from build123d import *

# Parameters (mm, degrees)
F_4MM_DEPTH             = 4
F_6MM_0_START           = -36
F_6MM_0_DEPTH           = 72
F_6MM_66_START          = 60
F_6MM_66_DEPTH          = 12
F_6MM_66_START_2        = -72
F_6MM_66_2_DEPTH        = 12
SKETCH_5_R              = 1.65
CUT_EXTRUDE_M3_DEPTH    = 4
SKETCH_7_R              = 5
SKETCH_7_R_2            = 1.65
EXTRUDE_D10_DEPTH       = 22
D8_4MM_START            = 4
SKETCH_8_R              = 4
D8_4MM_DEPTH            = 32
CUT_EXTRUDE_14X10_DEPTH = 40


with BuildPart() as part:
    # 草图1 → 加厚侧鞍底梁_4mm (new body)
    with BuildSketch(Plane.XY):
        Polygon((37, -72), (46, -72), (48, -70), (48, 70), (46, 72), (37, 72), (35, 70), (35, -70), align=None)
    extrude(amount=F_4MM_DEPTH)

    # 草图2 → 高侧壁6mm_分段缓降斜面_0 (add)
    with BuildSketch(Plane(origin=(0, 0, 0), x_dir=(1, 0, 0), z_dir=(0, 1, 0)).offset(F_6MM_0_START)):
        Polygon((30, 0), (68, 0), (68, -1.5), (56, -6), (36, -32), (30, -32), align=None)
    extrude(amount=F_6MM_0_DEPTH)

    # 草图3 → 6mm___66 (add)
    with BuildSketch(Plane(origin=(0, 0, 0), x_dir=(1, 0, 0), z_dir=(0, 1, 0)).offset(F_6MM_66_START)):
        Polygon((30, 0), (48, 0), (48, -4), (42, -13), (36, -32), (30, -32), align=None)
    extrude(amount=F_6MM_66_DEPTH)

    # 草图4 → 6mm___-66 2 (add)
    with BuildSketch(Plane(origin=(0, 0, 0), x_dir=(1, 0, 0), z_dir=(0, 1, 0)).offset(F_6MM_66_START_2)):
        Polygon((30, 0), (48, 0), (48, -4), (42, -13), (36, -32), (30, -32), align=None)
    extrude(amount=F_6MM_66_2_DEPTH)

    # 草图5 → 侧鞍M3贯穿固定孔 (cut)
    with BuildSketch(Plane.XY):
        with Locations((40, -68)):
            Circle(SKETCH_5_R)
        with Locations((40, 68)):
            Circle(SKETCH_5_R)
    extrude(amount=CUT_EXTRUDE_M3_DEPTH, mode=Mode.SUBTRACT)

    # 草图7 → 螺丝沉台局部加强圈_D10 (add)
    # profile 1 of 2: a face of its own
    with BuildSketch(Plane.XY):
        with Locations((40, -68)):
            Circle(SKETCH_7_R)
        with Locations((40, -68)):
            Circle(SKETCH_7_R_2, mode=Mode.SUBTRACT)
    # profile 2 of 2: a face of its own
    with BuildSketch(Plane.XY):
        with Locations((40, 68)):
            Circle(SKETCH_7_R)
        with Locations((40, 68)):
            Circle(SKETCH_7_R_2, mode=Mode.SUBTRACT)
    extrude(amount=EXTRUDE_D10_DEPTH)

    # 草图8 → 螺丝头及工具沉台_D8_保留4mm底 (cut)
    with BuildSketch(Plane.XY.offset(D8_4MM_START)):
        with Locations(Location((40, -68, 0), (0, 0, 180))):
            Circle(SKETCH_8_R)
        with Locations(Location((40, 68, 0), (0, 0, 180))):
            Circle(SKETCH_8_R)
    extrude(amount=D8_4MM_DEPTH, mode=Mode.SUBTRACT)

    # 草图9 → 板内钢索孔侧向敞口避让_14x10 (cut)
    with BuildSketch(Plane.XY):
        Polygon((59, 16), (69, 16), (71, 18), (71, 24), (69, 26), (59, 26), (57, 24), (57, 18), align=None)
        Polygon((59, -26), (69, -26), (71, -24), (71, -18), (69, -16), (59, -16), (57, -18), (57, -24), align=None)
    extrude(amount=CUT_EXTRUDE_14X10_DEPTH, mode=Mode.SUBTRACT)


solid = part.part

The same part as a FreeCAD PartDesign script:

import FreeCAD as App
import Part
import Sketcher

doc = App.newDocument("Part")
body = doc.addObject("PartDesign::Body", "Body")

# Sketch on XY plane
sketch1 = body.newObject("Sketcher::SketchObject", "Sketch")
sketch1.AttachmentSupport = (doc.getObject("XY_Plane"), [""])
sketch1.MapMode = "FlatFace"
sketch1.addGeometry(Part.LineSegment(App.Vector(37, -72, 0), App.Vector(46, -72, 0)), False)
sketch1.addGeometry(Part.LineSegment(App.Vector(46, -72, 0), App.Vector(48, -70, 0)), False)
sketch1.addGeometry(Part.LineSegment(App.Vector(48, -70, 0), App.Vector(48, 70, 0)), False)
sketch1.addGeometry(Part.LineSegment(App.Vector(48, 70, 0), App.Vector(46, 72, 0)), False)
sketch1.addGeometry(Part.LineSegment(App.Vector(46, 72, 0), App.Vector(37, 72, 0)), False)
sketch1.addGeometry(Part.LineSegment(App.Vector(37, 72, 0), App.Vector(35, 70, 0)), False)
sketch1.addGeometry(Part.LineSegment(App.Vector(35, 70, 0), App.Vector(35, -70, 0)), False)
sketch1.addGeometry(Part.LineSegment(App.Vector(35, -70, 0), App.Vector(37, -72, 0)), False)
sketch1.addConstraint(Sketcher.Constraint("Coincident", 0, 2, 1, 1))
sketch1.addConstraint(Sketcher.Constraint("Coincident", 1, 2, 2, 1))
sketch1.addConstraint(Sketcher.Constraint("Coincident", 2, 2, 3, 1))
sketch1.addConstraint(Sketcher.Constraint("Coincident", 3, 2, 4, 1))
sketch1.addConstraint(Sketcher.Constraint("Coincident", 4, 2, 5, 1))
sketch1.addConstraint(Sketcher.Constraint("Coincident", 5, 2, 6, 1))
sketch1.addConstraint(Sketcher.Constraint("Coincident", 6, 2, 7, 1))
sketch1.addConstraint(Sketcher.Constraint("Coincident", 7, 2, 0, 1))
sketch1.addConstraint(Sketcher.Constraint("Horizontal", 0))
sketch1.addConstraint(Sketcher.Constraint("Vertical", 2))
sketch1.addConstraint(Sketcher.Constraint("Horizontal", 4))
sketch1.addConstraint(Sketcher.Constraint("Vertical", 6))
sketch1.addConstraint(Sketcher.Constraint("Symmetric", 0, 2, 3, 2, -1))
sketch1.addConstraint(Sketcher.Constraint("Perpendicular", 1, 3))
sketch1.addConstraint(Sketcher.Constraint("Perpendicular", 3, 5))
sketch1.addConstraint(Sketcher.Constraint("Perpendicular", 5, 7))
sketch1.addConstraint(Sketcher.Constraint("Horizontal", 2, 2, 5, 2))
sketch1.addConstraint(Sketcher.Constraint("Horizontal", 1, 2, 6, 2))
sketch1.addConstraint(Sketcher.Constraint("Vertical", 4, 2, 7, 2))
sketch1.addConstraint(Sketcher.Constraint("DistanceX", 0, 1, 0, 2, 9.0))
sketch1.addConstraint(Sketcher.Constraint("DistanceY", 2, 1, 2, 2, 140.0))
sketch1.addConstraint(Sketcher.Constraint("DistanceX", -1, 1, 0, 2, 46.0))
sketch1.addConstraint(Sketcher.Constraint("DistanceY", 0, 2, -1, 1, 72.0))
pad1 = body.newObject("PartDesign::Pad", "Pad")
pad1.Profile = sketch1
pad1.Length = 4

# Sketch on XZ plane
sketch2 = body.newObject("Sketcher::SketchObject", "Sketch001")
sketch2.AttachmentSupport = (doc.getObject("XZ_Plane"), [""])
sketch2.MapMode = "FlatFace"
sketch2.AttachmentOffset = App.Placement(App.Vector(0, 0, 36), App.Rotation())
sketch2.addGeometry(Part.LineSegment(App.Vector(68, 0, 0), App.Vector(30, 0, 0)), False)
sketch2.addGeometry(Part.LineSegment(App.Vector(30, 0, 0), App.Vector(30, 32, 0)), False)
sketch2.addGeometry(Part.LineSegment(App.Vector(30, 32, 0), App.Vector(36, 32, 0)), False)
sketch2.addGeometry(Part.LineSegment(App.Vector(36, 32, 0), App.Vector(56, 6, 0)), False)
sketch2.addGeometry(Part.LineSegment(App.Vector(56, 6, 0), App.Vector(68, 1.5, 0)), False)
sketch2.addGeometry(Part.LineSegment(App.Vector(68, 1.5, 0), App.Vector(68, 0, 0)), False)
sketch2.addConstraint(Sketcher.Constraint("Coincident", 0, 2, 1, 1))
sketch2.addConstraint(Sketcher.Constraint("Coincident", 1, 2, 2, 1))
sketch2.addConstraint(Sketcher.Constraint("Coincident", 2, 2, 3, 1))
sketch2.addConstraint(Sketcher.Constraint("Coincident", 3, 2, 4, 1))
sketch2.addConstraint(Sketcher.Constraint("Coincident", 4, 2, 5, 1))
sketch2.addConstraint(Sketcher.Constraint("Coincident", 5, 2, 0, 1))
sketch2.addConstraint(Sketcher.Constraint("Horizontal", 0))
sketch2.addConstraint(Sketcher.Constraint("Vertical", 1))
sketch2.addConstraint(Sketcher.Constraint("Horizontal", 2))
sketch2.addConstraint(Sketcher.Constraint("Vertical", 5))
sketch2.addConstraint(Sketcher.Constraint("PointOnObject", 0, 2, -1))
sketch2.addConstraint(Sketcher.Constraint("DistanceX", 0, 2, 0, 1, 38.0))
sketch2.addConstraint(Sketcher.Constraint("DistanceX", 2, 1, 2, 2, 6.0))
sketch2.addConstraint(Sketcher.Constraint("DistanceY", 1, 1, 1, 2, 32.0))
sketch2.addConstraint(Sketcher.Constraint("DistanceY", 5, 2, 5, 1, 1.5))
sketch2.addConstraint(Sketcher.Constraint("DistanceX", -1, 1, 0, 2, 30.0))
sketch2.addConstraint(Sketcher.Constraint("DistanceX", -1, 1, 3, 2, 56.0))
sketch2.addConstraint(Sketcher.Constraint("DistanceY", -1, 1, 3, 2, 6.0))
pad2 = body.newObject("PartDesign::Pad", "Pad001")
pad2.Profile = sketch2
pad2.Length = 72
pad2.Reversed = True

# Sketch on XZ plane
sketch3 = body.newObject("Sketcher::SketchObject", "Sketch002")
sketch3.AttachmentSupport = (doc.getObject("XZ_Plane"), [""])
sketch3.MapMode = "FlatFace"
sketch3.AttachmentOffset = App.Placement(App.Vector(0, 0, -60), App.Rotation())
sketch3.addGeometry(Part.LineSegment(App.Vector(48, 0, 0), App.Vector(30, 0, 0)), False)
sketch3.addGeometry(Part.LineSegment(App.Vector(30, 0, 0), App.Vector(30, 32, 0)), False)
sketch3.addGeometry(Part.LineSegment(App.Vector(30, 32, 0), App.Vector(36, 32, 0)), False)
sketch3.addGeometry(Part.LineSegment(App.Vector(36, 32, 0), App.Vector(42, 13, 0)), False)
sketch3.addGeometry(Part.LineSegment(App.Vector(42, 13, 0), App.Vector(48, 4, 0)), False)
sketch3.addGeometry(Part.LineSegment(App.Vector(48, 4, 0), App.Vector(48, 0, 0)), False)
sketch3.addConstraint(Sketcher.Constraint("Coincident", 0, 2, 1, 1))
sketch3.addConstraint(Sketcher.Constraint("Coincident", 1, 2, 2, 1))
sketch3.addConstraint(Sketcher.Constraint("Coincident", 2, 2, 3, 1))
sketch3.addConstraint(Sketcher.Constraint("Coincident", 3, 2, 4, 1))
sketch3.addConstraint(Sketcher.Constraint("Coincident", 4, 2, 5, 1))
sketch3.addConstraint(Sketcher.Constraint("Coincident", 5, 2, 0, 1))
sketch3.addConstraint(Sketcher.Constraint("Horizontal", 0))
sketch3.addConstraint(Sketcher.Constraint("Vertical", 1))
sketch3.addConstraint(Sketcher.Constraint("Horizontal", 2))
sketch3.addConstraint(Sketcher.Constraint("Vertical", 5))
sketch3.addConstraint(Sketcher.Constraint("PointOnObject", 0, 2, -1))
sketch3.addConstraint(Sketcher.Constraint("DistanceX", 0, 2, 0, 1, 18.0))
sketch3.addConstraint(Sketcher.Constraint("DistanceX", 2, 1, 2, 2, 6.0))
sketch3.addConstraint(Sketcher.Constraint("DistanceY", 1, 1, 1, 2, 32.0))
sketch3.addConstraint(Sketcher.Constraint("DistanceY", 5, 2, 5, 1, 4.0))
sketch3.addConstraint(Sketcher.Constraint("DistanceX", -1, 1, 0, 2, 30.0))
sketch3.addConstraint(Sketcher.Constraint("DistanceX", -1, 1, 3, 2, 42.0))
sketch3.addConstraint(Sketcher.Constraint("DistanceY", -1, 1, 3, 2, 13.0))
pad3 = body.newObject("PartDesign::Pad", "Pad002")
pad3.Profile = sketch3
pad3.Length = 12
pad3.Reversed = True

# Sketch on XZ plane
sketch4 = body.newObject("Sketcher::SketchObject", "Sketch003")
sketch4.AttachmentSupport = (doc.getObject("XZ_Plane"), [""])
sketch4.MapMode = "FlatFace"
sketch4.AttachmentOffset = App.Placement(App.Vector(0, 0, 72), App.Rotation())
sketch4.addGeometry(Part.LineSegment(App.Vector(48, 0, 0), App.Vector(30, 0, 0)), False)
sketch4.addGeometry(Part.LineSegment(App.Vector(30, 0, 0), App.Vector(30, 32, 0)), False)
sketch4.addGeometry(Part.LineSegment(App.Vector(30, 32, 0), App.Vector(36, 32, 0)), False)
sketch4.addGeometry(Part.LineSegment(App.Vector(36, 32, 0), App.Vector(42, 13, 0)), False)
sketch4.addGeometry(Part.LineSegment(App.Vector(42, 13, 0), App.Vector(48, 4, 0)), False)
sketch4.addGeometry(Part.LineSegment(App.Vector(48, 4, 0), App.Vector(48, 0, 0)), False)
sketch4.addConstraint(Sketcher.Constraint("Coincident", 0, 2, 1, 1))
sketch4.addConstraint(Sketcher.Constraint("Coincident", 1, 2, 2, 1))
sketch4.addConstraint(Sketcher.Constraint("Coincident", 2, 2, 3, 1))
sketch4.addConstraint(Sketcher.Constraint("Coincident", 3, 2, 4, 1))
sketch4.addConstraint(Sketcher.Constraint("Coincident", 4, 2, 5, 1))
sketch4.addConstraint(Sketcher.Constraint("Coincident", 5, 2, 0, 1))
sketch4.addConstraint(Sketcher.Constraint("Horizontal", 0))
sketch4.addConstraint(Sketcher.Constraint("Vertical", 1))
sketch4.addConstraint(Sketcher.Constraint("Horizontal", 2))
sketch4.addConstraint(Sketcher.Constraint("Vertical", 5))
sketch4.addConstraint(Sketcher.Constraint("PointOnObject", 0, 2, -1))
sketch4.addConstraint(Sketcher.Constraint("DistanceX", 0, 2, 0, 1, 18.0))
sketch4.addConstraint(Sketcher.Constraint("DistanceX", 2, 1, 2, 2, 6.0))
sketch4.addConstraint(Sketcher.Constraint("DistanceY", 1, 1, 1, 2, 32.0))
sketch4.addConstraint(Sketcher.Constraint("DistanceY", 5, 2, 5, 1, 4.0))
sketch4.addConstraint(Sketcher.Constraint("DistanceX", -1, 1, 0, 2, 30.0))
sketch4.addConstraint(Sketcher.Constraint("DistanceX", -1, 1, 3, 2, 42.0))
sketch4.addConstraint(Sketcher.Constraint("DistanceY", -1, 1, 3, 2, 13.0))
pad4 = body.newObject("PartDesign::Pad", "Pad003")
pad4.Profile = sketch4
pad4.Length = 12
pad4.Reversed = True

# Sketch on XY plane
sketch5 = body.newObject("Sketcher::SketchObject", "Sketch004")
sketch5.AttachmentSupport = (doc.getObject("XY_Plane"), [""])
sketch5.MapMode = "FlatFace"
sketch5.addGeometry(Part.Circle(App.Vector(40, -68, 0), App.Vector(0, 0, 1), 1.6), False)
sketch5.addGeometry(Part.Circle(App.Vector(40, 68, 0), App.Vector(0, 0, 1), 1.6), False)
sketch5.addConstraint(Sketcher.Constraint("Equal", 0, 1))
sketch5.addConstraint(Sketcher.Constraint("Symmetric", 0, 3, 1, 3, -1))
sketch5.addConstraint(Sketcher.Constraint("Diameter", 0, 3.3))
sketch5.addConstraint(Sketcher.Constraint("DistanceX", -1, 1, 0, 3, 40.0))
sketch5.addConstraint(Sketcher.Constraint("DistanceY", 0, 3, -1, 1, 68.0))
pocket1 = body.newObject("PartDesign::Pocket", "Pocket")
pocket1.Profile = sketch5
pocket1.Length = 4
pocket1.Reversed = True

# Sketch on XY plane
sketch6 = body.newObject("Sketcher::SketchObject", "Sketch005")
sketch6.AttachmentSupport = (doc.getObject("XY_Plane"), [""])
sketch6.MapMode = "FlatFace"
sketch6.addGeometry(Part.Circle(App.Vector(40, -68, 0), App.Vector(0, 0, 1), 5), False)
sketch6.addGeometry(Part.Circle(App.Vector(40, -68, 0), App.Vector(0, 0, 1), 1.6), False)
sketch6.addGeometry(Part.Circle(App.Vector(40, 68, 0), App.Vector(0, 0, 1), 5), False)
sketch6.addGeometry(Part.Circle(App.Vector(40, 68, 0), App.Vector(0, 0, 1), 1.6), False)
sketch6.addConstraint(Sketcher.Constraint("Coincident", 1, 3, 0, 3))
sketch6.addConstraint(Sketcher.Constraint("Coincident", 3, 3, 2, 3))
sketch6.addConstraint(Sketcher.Constraint("Equal", 0, 2))
sketch6.addConstraint(Sketcher.Constraint("Equal", 1, 3))
sketch6.addConstraint(Sketcher.Constraint("Symmetric", 0, 3, 2, 3, -1))
sketch6.addConstraint(Sketcher.Constraint("Diameter", 0, 10.0))
sketch6.addConstraint(Sketcher.Constraint("Diameter", 1, 3.3))
sketch6.addConstraint(Sketcher.Constraint("DistanceX", -1, 1, 0, 3, 40.0))
sketch6.addConstraint(Sketcher.Constraint("DistanceY", 0, 3, -1, 1, 68.0))
pad5 = body.newObject("PartDesign::Pad", "Pad004")
pad5.Profile = sketch6
pad5.Length = 22

# Sketch on XY plane
sketch7 = body.newObject("Sketcher::SketchObject", "Sketch006")
sketch7.AttachmentSupport = (doc.getObject("XY_Plane"), [""])
sketch7.MapMode = "FlatFace"
sketch7.AttachmentOffset = App.Placement(App.Vector(0, 0, 4), App.Rotation())
sketch7.addGeometry(Part.Circle(App.Vector(40, -68, 0), App.Vector(0, 0, 1), 4), False)
sketch7.addGeometry(Part.Circle(App.Vector(40, 68, 0), App.Vector(0, 0, 1), 4), False)
sketch7.addConstraint(Sketcher.Constraint("Equal", 0, 1))
sketch7.addConstraint(Sketcher.Constraint("Symmetric", 0, 3, 1, 3, -1))
sketch7.addConstraint(Sketcher.Constraint("Diameter", 0, 8.0))
sketch7.addConstraint(Sketcher.Constraint("DistanceX", -1, 1, 0, 3, 40.0))
sketch7.addConstraint(Sketcher.Constraint("DistanceY", 0, 3, -1, 1, 68.0))
pocket2 = body.newObject("PartDesign::Pocket", "Pocket001")
pocket2.Profile = sketch7
pocket2.Length = 32
pocket2.Reversed = True

# Sketch on XY plane
sketch8 = body.newObject("Sketcher::SketchObject", "Sketch007")
sketch8.AttachmentSupport = (doc.getObject("XY_Plane"), [""])
sketch8.MapMode = "FlatFace"
sketch8.addGeometry(Part.LineSegment(App.Vector(59, 16, 0), App.Vector(69, 16, 0)), False)
sketch8.addGeometry(Part.LineSegment(App.Vector(69, 16, 0), App.Vector(71, 18, 0)), False)
sketch8.addGeometry(Part.LineSegment(App.Vector(71, 18, 0), App.Vector(71, 24, 0)), False)
sketch8.addGeometry(Part.LineSegment(App.Vector(71, 24, 0), App.Vector(69, 26, 0)), False)
sketch8.addGeometry(Part.LineSegment(App.Vector(69, 26, 0), App.Vector(59, 26, 0)), False)
sketch8.addGeometry(Part.LineSegment(App.Vector(59, 26, 0), App.Vector(57, 24, 0)), False)
sketch8.addGeometry(Part.LineSegment(App.Vector(57, 24, 0), App.Vector(57, 18, 0)), False)
sketch8.addGeometry(Part.LineSegment(App.Vector(57, 18, 0), App.Vector(59, 16, 0)), False)
sketch8.addGeometry(Part.LineSegment(App.Vector(59, -26, 0), App.Vector(69, -26, 0)), False)
sketch8.addGeometry(Part.LineSegment(App.Vector(69, -26, 0), App.Vector(71, -24, 0)), False)
sketch8.addGeometry(Part.LineSegment(App.Vector(71, -24, 0), App.Vector(71, -18, 0)), False)
sketch8.addGeometry(Part.LineSegment(App.Vector(71, -18, 0), App.Vector(69, -16, 0)), False)
sketch8.addGeometry(Part.LineSegment(App.Vector(69, -16, 0), App.Vector(59, -16, 0)), False)
sketch8.addGeometry(Part.LineSegment(App.Vector(59, -16, 0), App.Vector(57, -18, 0)), False)
sketch8.addGeometry(Part.LineSegment(App.Vector(57, -18, 0), App.Vector(57, -24, 0)), False)
sketch8.addGeometry(Part.LineSegment(App.Vector(57, -24, 0), App.Vector(59, -26, 0)), False)
sketch8.addConstraint(Sketcher.Constraint("Coincident", 0, 2, 1, 1))
sketch8.addConstraint(Sketcher.Constraint("Coincident", 1, 2, 2, 1))
sketch8.addConstraint(Sketcher.Constraint("Coincident", 2, 2, 3, 1))
sketch8.addConstraint(Sketcher.Constraint("Coincident", 3, 2, 4, 1))
sketch8.addConstraint(Sketcher.Constraint("Coincident", 4, 2, 5, 1))
sketch8.addConstraint(Sketcher.Constraint("Coincident", 5, 2, 6, 1))
sketch8.addConstraint(Sketcher.Constraint("Coincident", 6, 2, 7, 1))
sketch8.addConstraint(Sketcher.Constraint("Coincident", 7, 2, 0, 1))
sketch8.addConstraint(Sketcher.Constraint("Coincident", 8, 2, 9, 1))
sketch8.addConstraint(Sketcher.Constraint("Coincident", 9, 2, 10, 1))
sketch8.addConstraint(Sketcher.Constraint("Coincident", 10, 2, 11, 1))
sketch8.addConstraint(Sketcher.Constraint("Coincident", 11, 2, 12, 1))
sketch8.addConstraint(Sketcher.Constraint("Coincident", 12, 2, 13, 1))
sketch8.addConstraint(Sketcher.Constraint("Coincident", 13, 2, 14, 1))
sketch8.addConstraint(Sketcher.Constraint("Coincident", 14, 2, 15, 1))
sketch8.addConstraint(Sketcher.Constraint("Coincident", 15, 2, 8, 1))
sketch8.addConstraint(Sketcher.Constraint("Horizontal", 0))
sketch8.addConstraint(Sketcher.Constraint("Vertical", 2))
sketch8.addConstraint(Sketcher.Constraint("Horizontal", 4))
sketch8.addConstraint(Sketcher.Constraint("Vertical", 6))
sketch8.addConstraint(Sketcher.Constraint("Horizontal", 8))
sketch8.addConstraint(Sketcher.Constraint("Vertical", 10))
sketch8.addConstraint(Sketcher.Constraint("Horizontal", 12))
sketch8.addConstraint(Sketcher.Constraint("Vertical", 14))
sketch8.addConstraint(Sketcher.Constraint("Symmetric", 3, 2, 8, 2, -1))
sketch8.addConstraint(Sketcher.Constraint("Symmetric", 2, 2, 9, 2, -1))
sketch8.addConstraint(Sketcher.Constraint("Symmetric", 0, 2, 11, 2, -1))
sketch8.addConstraint(Sketcher.Constraint("Symmetric", 6, 2, 13, 2, -1))
sketch8.addConstraint(Sketcher.Constraint("Perpendicular", 1, 3))
sketch8.addConstraint(Sketcher.Constraint("Perpendicular", 3, 5))
sketch8.addConstraint(Sketcher.Constraint("Perpendicular", 5, 7))
sketch8.addConstraint(Sketcher.Constraint("Perpendicular", 7, 9))
sketch8.addConstraint(Sketcher.Constraint("Perpendicular", 9, 11))
sketch8.addConstraint(Sketcher.Constraint("Perpendicular", 11, 13))
sketch8.addConstraint(Sketcher.Constraint("Perpendicular", 13, 15))
sketch8.addConstraint(Sketcher.Constraint("Horizontal", 2, 2, 5, 2))
sketch8.addConstraint(Sketcher.Constraint("Horizontal", 1, 2, 6, 2))
sketch8.addConstraint(Sketcher.Constraint("Horizontal", 9, 2, 14, 2))
sketch8.addConstraint(Sketcher.Constraint("Vertical", 0, 2, 3, 2))
sketch8.addConstraint(Sketcher.Constraint("DistanceX", 0, 1, 0, 2, 10.0))
sketch8.addConstraint(Sketcher.Constraint("DistanceY", 2, 1, 2, 2, 6.0))
sketch8.addConstraint(Sketcher.Constraint("DistanceX", -1, 1, 0, 2, 69.0))
sketch8.addConstraint(Sketcher.Constraint("DistanceY", -1, 1, 0, 2, 16.0))
sketch8.addConstraint(Sketcher.Constraint("DistanceX", -1, 1, 1, 2, 71.0))
pocket3 = body.newObject("PartDesign::Pocket", "Pocket002")
pocket3.Profile = sketch8
pocket3.Length = 40
pocket3.Reversed = True

doc.recompute()
